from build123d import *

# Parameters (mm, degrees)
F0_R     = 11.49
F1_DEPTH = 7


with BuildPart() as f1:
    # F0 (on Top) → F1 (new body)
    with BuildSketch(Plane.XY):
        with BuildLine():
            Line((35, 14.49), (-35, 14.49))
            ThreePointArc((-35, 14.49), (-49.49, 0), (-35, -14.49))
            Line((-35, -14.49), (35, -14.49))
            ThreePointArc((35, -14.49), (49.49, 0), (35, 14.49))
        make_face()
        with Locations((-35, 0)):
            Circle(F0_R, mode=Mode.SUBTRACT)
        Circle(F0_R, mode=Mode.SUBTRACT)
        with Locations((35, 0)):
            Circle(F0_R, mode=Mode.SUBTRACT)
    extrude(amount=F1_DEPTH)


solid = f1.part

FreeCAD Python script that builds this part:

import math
import FreeCAD as App
import Part
import Sketcher
from FreeCAD import Vector
Q = App.Units.Quantity

doc = App.newDocument("Part")
params = doc.addObject("Spreadsheet::Sheet", "Params")
for row, (alias, value) in enumerate([
    ("sketch1_diameter", "22.98 mm"),
    ("sketch1_width", "70 mm"),
    ("sketch1_radius", "14.49 mm"),
    ("pad1_length", "7 mm"),
], start=1):
    params.set(f"A{row}", alias)
    params.set(f"B{row}", "=" + value)
    params.setAlias(f"B{row}", alias)

body = doc.addObject("PartDesign::Body", "Body")

# Sketch on XY plane
sketch1 = body.newObject("Sketcher::SketchObject", "Sketch")
sketch1.AttachmentSupport = (doc.getObject("XY_Plane"), [""])
sketch1.MapMode = "FlatFace"
sketch1.addGeometry([
    Part.LineSegment(Vector(35, 14.49, 0), Vector(-35, 14.49, 0)),  # 0
    Part.ArcOfCircle(Part.Circle(Vector(-35, 0, 0), Vector(0, 0, 1), 14.49), math.radians(90), math.radians(270)),  # 1
    Part.LineSegment(Vector(-35, -14.49, 0), Vector(35, -14.49, 0)),  # 2
    Part.ArcOfCircle(Part.Circle(Vector(35, 0, 0), Vector(0, 0, 1), 14.49), math.radians(-90), math.radians(90)),  # 3
    Part.Circle(Vector(-35, 0, 0), Vector(0, 0, 1), 11.49),  # 4
    Part.Circle(Vector(0, 0, 0), Vector(0, 0, 1), 11.49),  # 5
    Part.Circle(Vector(35, 0, 0), Vector(0, 0, 1), 11.49),  # 6
], False)
sketch1.addConstraint([
    Sketcher.Constraint("Tangent", 0, 2, 1, 1),
    Sketcher.Constraint("Tangent", 1, 2, 2, 1),
    Sketcher.Constraint("Tangent", 2, 2, 3, 1),
    Sketcher.Constraint("Tangent", 3, 2, 0, 1),
    Sketcher.Constraint("Horizontal", 0),
    Sketcher.Constraint("Horizontal", 2),
    Sketcher.Constraint("Coincident", 5, 3, -1, 1),
    Sketcher.Constraint("Coincident", 4, 3, 1, 3),
    Sketcher.Constraint("Coincident", 6, 3, 3, 3),
    Sketcher.Constraint("Equal", 4, 5),
    Sketcher.Constraint("Equal", 5, 6),
    Sketcher.Constraint("Symmetric", 1, 3, 3, 3, -1, 1),
    Sketcher.Constraint("Diameter", 4, Q("22.98 mm")),
    Sketcher.Constraint("DistanceX", 0, 2, 0, 1, Q("70 mm")),
    Sketcher.Constraint("Radius", 1, Q("14.49 mm")),
])
sketch1.setExpression("Constraints[12]", "Params.sketch1_diameter")
sketch1.setExpression("Constraints[13]", "Params.sketch1_width")
sketch1.setExpression("Constraints[14]", "Params.sketch1_radius")
pad1 = body.newObject("PartDesign::Pad", "Pad")
pad1.Profile = sketch1
pad1.setExpression("Length", "Params.pad1_length")

doc.recompute()
